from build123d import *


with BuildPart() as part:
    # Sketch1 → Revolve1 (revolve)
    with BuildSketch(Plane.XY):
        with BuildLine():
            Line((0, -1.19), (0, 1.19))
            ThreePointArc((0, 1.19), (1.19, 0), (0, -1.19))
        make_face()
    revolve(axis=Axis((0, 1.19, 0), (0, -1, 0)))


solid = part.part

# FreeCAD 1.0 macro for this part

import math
import FreeCAD as App
import Part
import Sketcher

doc = App.newDocument("Part")
body = doc.addObject("PartDesign::Body", "Body")

sketch1 = body.newObject("Sketcher::SketchObject", "Sketch")
sketch1.AttachmentSupport = (doc.getObject("XY_Plane"), [""])
sketch1.MapMode = "FlatFace"
sketch1.addGeometry([
    Part.LineSegment(App.Vector(0, 1.19, 0), App.Vector(0, -1.19, 0)),
    Part.ArcOfCircle(Part.Circle(App.Vector(0, 0, 0), App.Vector(0, 0, 1), 1.19), math.radians(-90), math.radians(90)),
], False)
sketch1.addConstraint([
    Sketcher.Constraint("Coincident", 0, 1, 1, 2),
    Sketcher.Constraint("Coincident", 1, 1, 0, 2),
    Sketcher.Constraint("Vertical", 0),
    Sketcher.Constraint("Coincident", 1, 3, -1, 1),
    Sketcher.Constraint("PointOnObject", 0, 1, -2),
    Sketcher.Constraint("Radius", 1, 1.19),
])
revolution = body.newObject("PartDesign::Revolution", "Revolution")
revolution.Profile = sketch1
revolution.ReferenceAxis = (sketch1, ["V_Axis"])
revolution.Angle = 360

doc.recompute()
